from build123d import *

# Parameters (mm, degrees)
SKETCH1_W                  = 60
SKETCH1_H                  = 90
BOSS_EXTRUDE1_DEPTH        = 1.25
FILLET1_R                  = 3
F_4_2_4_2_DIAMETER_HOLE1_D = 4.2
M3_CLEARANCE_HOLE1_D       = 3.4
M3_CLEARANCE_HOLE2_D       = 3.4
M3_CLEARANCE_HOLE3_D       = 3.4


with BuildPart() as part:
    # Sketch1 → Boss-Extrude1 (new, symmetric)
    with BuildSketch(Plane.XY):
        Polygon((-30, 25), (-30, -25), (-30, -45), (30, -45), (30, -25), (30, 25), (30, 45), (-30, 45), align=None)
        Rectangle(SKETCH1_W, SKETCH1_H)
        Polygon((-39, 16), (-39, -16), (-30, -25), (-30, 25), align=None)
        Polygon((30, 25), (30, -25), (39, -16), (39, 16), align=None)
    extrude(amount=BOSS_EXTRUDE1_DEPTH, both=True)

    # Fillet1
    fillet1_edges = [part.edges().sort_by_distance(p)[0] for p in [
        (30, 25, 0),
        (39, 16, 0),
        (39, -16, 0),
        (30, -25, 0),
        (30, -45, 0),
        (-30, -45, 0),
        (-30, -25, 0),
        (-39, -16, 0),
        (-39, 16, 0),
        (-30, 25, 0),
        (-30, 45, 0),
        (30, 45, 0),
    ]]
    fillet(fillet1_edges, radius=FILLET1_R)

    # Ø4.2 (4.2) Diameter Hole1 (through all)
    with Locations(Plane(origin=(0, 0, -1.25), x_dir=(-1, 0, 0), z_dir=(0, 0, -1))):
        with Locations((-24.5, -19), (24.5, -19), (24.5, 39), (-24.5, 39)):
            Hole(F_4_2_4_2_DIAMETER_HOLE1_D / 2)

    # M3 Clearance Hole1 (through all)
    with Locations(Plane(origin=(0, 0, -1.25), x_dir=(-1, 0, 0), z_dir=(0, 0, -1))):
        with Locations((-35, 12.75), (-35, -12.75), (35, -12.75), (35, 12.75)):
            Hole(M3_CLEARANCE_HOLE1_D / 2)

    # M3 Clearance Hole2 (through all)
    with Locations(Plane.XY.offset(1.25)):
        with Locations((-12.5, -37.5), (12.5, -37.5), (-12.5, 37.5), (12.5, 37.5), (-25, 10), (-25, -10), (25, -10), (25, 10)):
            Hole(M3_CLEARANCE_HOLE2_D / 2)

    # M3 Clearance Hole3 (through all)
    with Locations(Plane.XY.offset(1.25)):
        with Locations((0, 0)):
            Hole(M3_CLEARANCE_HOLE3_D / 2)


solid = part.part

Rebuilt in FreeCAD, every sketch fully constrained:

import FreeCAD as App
import Part
import Sketcher

V = App.Vector
Q = App.Units.Quantity


def edges_at(feature, points):
    """Names of the edges that pass closest to the given points."""
    edges = feature.Shape.Edges
    near = lambda p: min(range(len(edges)), key=lambda i: edges[i].distToShape(Part.Vertex(*p))[0])
    return sorted({f"Edge{near(p) + 1}" for p in points})

doc = App.newDocument("Part")
params = doc.addObject("Spreadsheet::Sheet", "Params")
for row, (alias, value) in enumerate([
    ("sketch1_width", "60 mm"),
    ("sketch1_height", "20 mm"),
    ("sketch1_height2", "32 mm"),
    ("pad1_length", "2.5 mm"),
    ("fillet_radius", "3 mm"),
    ("sketch2_diameter", "4.2 mm"),
    ("hole_diameter", "4.2 mm"),
    ("sketch3_diameter", "3.4 mm"),
    ("hole2_diameter", "3.4 mm"),
    ("sketch4_diameter", "3.4 mm"),
    ("hole3_diameter", "3.4 mm"),
    ("sketch5_diameter", "3.4 mm"),
    ("hole4_diameter", "3.4 mm"),
], start=1):
    params.set(f"A{row}", alias)
    params.set(f"B{row}", "=" + value)
    params.setAlias(f"B{row}", alias)

body = doc.addObject("PartDesign::Body", "Body")

# Sketch on XY plane
sketch1 = body.newObject("Sketcher::SketchObject", "Sketch")
sketch1.AttachmentSupport = (doc.getObject("XY_Plane"), [""])
sketch1.MapMode = "FlatFace"
sketch1.addGeometry([
    Part.LineSegment(V(-30, -45, 0), V(30, -45, 0)),  # 0
    Part.LineSegment(V(30, -45, 0), V(30, -25, 0)),  # 1
    Part.LineSegment(V(30, -25, 0), V(39, -16, 0)),  # 2
    Part.LineSegment(V(39, -16, 0), V(39, 16, 0)),  # 3
    Part.LineSegment(V(39, 16, 0), V(30, 25, 0)),  # 4
    Part.LineSegment(V(30, 25, 0), V(30, 45, 0)),  # 5
    Part.LineSegment(V(30, 45, 0), V(-30, 45, 0)),  # 6
    Part.LineSegment(V(-30, 45, 0), V(-30, 25, 0)),  # 7
    Part.LineSegment(V(-30, 25, 0), V(-39, 16, 0)),  # 8
    Part.LineSegment(V(-39, 16, 0), V(-39, -16, 0)),  # 9
    Part.LineSegment(V(-39, -16, 0), V(-30, -25, 0)),  # 10
    Part.LineSegment(V(-30, -25, 0), V(-30, -45, 0)),  # 11
], False)
sketch1.addConstraint([
    Sketcher.Constraint("Coincident", 0, 2, 1, 1),
    Sketcher.Constraint("Coincident", 1, 2, 2, 1),
    Sketcher.Constraint("Coincident", 2, 2, 3, 1),
    Sketcher.Constraint("Coincident", 3, 2, 4, 1),
    Sketcher.Constraint("Coincident", 4, 2, 5, 1),
    Sketcher.Constraint("Coincident", 5, 2, 6, 1),
    Sketcher.Constraint("Coincident", 6, 2, 7, 1),
    Sketcher.Constraint("Coincident", 7, 2, 8, 1),
    Sketcher.Constraint("Coincident", 8, 2, 9, 1),
    Sketcher.Constraint("Coincident", 9, 2, 10, 1),
    Sketcher.Constraint("Coincident", 10, 2, 11, 1),
    Sketcher.Constraint("Coincident", 11, 2, 0, 1),
    Sketcher.Constraint("Horizontal", 0),
    Sketcher.Constraint("Vertical", 1),
    Sketcher.Constraint("Vertical", 3),
    Sketcher.Constraint("Vertical", 5),
    Sketcher.Constraint("Horizontal", 6),
    Sketcher.Constraint("Vertical", 7),
    Sketcher.Constraint("Vertical", 9),
    Sketcher.Constraint("Vertical", 11),
    Sketcher.Constraint("Symmetric", 0, 2, 6, 2, -1, 1),
    Sketcher.Constraint("Symmetric", 2, 2, 8, 2, -1, 1),
    Sketcher.Constraint("Symmetric", 4, 2, 10, 2, -1, 1),
    Sketcher.Constraint("Symmetric", 4, 2, 7, 2, -2),
    Sketcher.Constraint("Perpendicular", 2, 4),
    Sketcher.Constraint("Perpendicular", 4, 8),
    Sketcher.Constraint("Perpendicular", 8, 10),
    Sketcher.Constraint("Horizontal", 3, 2, 8, 2),
    Sketcher.Constraint("DistanceX", 0, 1, 0, 2, Q("60 mm")),
    Sketcher.Constraint("DistanceY", 1, 1, 1, 2, Q("20 mm")),
    Sketcher.Constraint("DistanceY", 3, 1, 3, 2, Q("32 mm")),
    Sketcher.Constraint("DistanceY", 0, 2, -1, 1, Q("45 mm")),
])
sketch1.setExpression("Constraints[28]", "Params.sketch1_width")
sketch1.setExpression("Constraints[29]", "Params.sketch1_height")
sketch1.setExpression("Constraints[30]", "Params.sketch1_height2")
pad1 = body.newObject("PartDesign::Pad", "Pad")
pad1.Profile = sketch1
pad1.setExpression("Length", "Params.pad1_length")
pad1.Midplane = True
doc.recompute()

fillet = body.newObject("PartDesign::Fillet", "Fillet")
fillet.Base = (pad1, edges_at(pad1, [
    (30, 25, 0),
    (39, 16, 0),
    (39, -16, 0),
    (30, -25, 0),
    (30, -45, 0),
    (-30, -45, 0),
    (-30, -25, 0),
    (-39, -16, 0),
    (-39, 16, 0),
    (-30, 25, 0),
    (-30, 45, 0),
    (30, 45, 0),
]))
fillet.setExpression("Radius", "Params.fillet_radius")

# Sketch on XY plane
sketch2 = body.newObject("Sketcher::SketchObject", "Sketch001")
sketch2.AttachmentSupport = (doc.getObject("XY_Plane"), [""])
sketch2.MapMode = "FlatFace"
sketch2.AttachmentOffset = App.Placement(V(0, 0, -1.25), App.Rotation())
sketch2.addGeometry([
    Part.Circle(V(24.5, -19, 0), V(0, 0, 1), 2.1),
    Part.Circle(V(-24.5, -19, 0), V(0, 0, 1), 2.1),
    Part.Circle(V(-24.5, 39, 0), V(0, 0, 1), 2.1),
    Part.Circle(V(24.5, 39, 0), V(0, 0, 1), 2.1),
], False)
sketch2.addConstraint([
    Sketcher.Constraint("Equal", 0, 1),
    Sketcher.Constraint("Equal", 1, 2),
    Sketcher.Constraint("Equal", 2, 3),
    Sketcher.Constraint("Symmetric", 0, 3, 1, 3, -2),
    Sketcher.Constraint("Symmetric", 2, 3, 3, 3, -2),
    Sketcher.Constraint("Vertical", 1, 3, 2, 3),
    Sketcher.Constraint("Diameter", 0, Q("4.2 mm")),
    Sketcher.Constraint("DistanceY", 0, 3, -1, 1, Q("19 mm")),
    Sketcher.Constraint("DistanceY", -1, 1, 2, 3, Q("39 mm")),
    Sketcher.Constraint("DistanceX", 1, 3, 0, 3, Q("49 mm")),
])
sketch2.setExpression("Constraints[6]", "Params.sketch2_diameter")
doc.recompute()
hole = body.newObject("PartDesign::Hole", "Hole")
hole.Profile = sketch2
hole.ThreadType = "None"
hole.setExpression("Diameter", "Params.hole_diameter")
hole.DepthType = "ThroughAll"
hole.Reversed = True

# Sketch on XY plane
sketch3 = body.newObject("Sketcher::SketchObject", "Sketch002")
sketch3.AttachmentSupport = (doc.getObject("XY_Plane"), [""])
sketch3.MapMode = "FlatFace"
sketch3.AttachmentOffset = App.Placement(V(0, 0, -1.25), App.Rotation())
sketch3.addGeometry([
    Part.Circle(V(35, 12.8, 0), V(0, 0, 1), 1.7),
    Part.Circle(V(35, -12.8, 0), V(0, 0, 1), 1.7),
    Part.Circle(V(-35, -12.8, 0), V(0, 0, 1), 1.7),
    Part.Circle(V(-35, 12.8, 0), V(0, 0, 1), 1.7),
], False)
sketch3.addConstraint([
    Sketcher.Constraint("Equal", 0, 1),
    Sketcher.Constraint("Equal", 1, 2),
    Sketcher.Constraint("Equal", 2, 3),
    Sketcher.Constraint("Symmetric", 0, 3, 2, 3, -1, 1),
    Sketcher.Constraint("Symmetric", 1, 3, 3, 3, -1, 1),
    Sketcher.Constraint("Symmetric", 1, 3, 2, 3, -2),
    Sketcher.Constraint("Diameter", 0, Q("3.4 mm")),
    Sketcher.Constraint("DistanceX", -1, 1, 0, 3, Q("35 mm")),
    Sketcher.Constraint("DistanceY", 1, 3, 0, 3, Q("25.5 mm")),
])
sketch3.setExpression("Constraints[6]", "Params.sketch3_diameter")
doc.recompute()
hole2 = body.newObject("PartDesign::Hole", "Hole001")
hole2.Profile = sketch3
hole2.ThreadType = "None"
hole2.setExpression("Diameter", "Params.hole2_diameter")
hole2.DepthType = "ThroughAll"
hole2.Reversed = True

# Sketch on XY plane
sketch4 = body.newObject("Sketcher::SketchObject", "Sketch003")
sketch4.AttachmentSupport = (doc.getObject("XY_Plane"), [""])
sketch4.MapMode = "FlatFace"
sketch4.AttachmentOffset = App.Placement(V(0, 0, 1.25), App.Rotation())
sketch4.addGeometry([
    Part.Circle(V(-12.5, -37.5, 0), V(0, 0, 1), 1.7),  # 0
    Part.Circle(V(12.5, -37.5, 0), V(0, 0, 1), 1.7),  # 1
    Part.Circle(V(-12.5, 37.5, 0), V(0, 0, 1), 1.7),  # 2
    Part.Circle(V(12.5, 37.5, 0), V(0, 0, 1), 1.7),  # 3
    Part.Circle(V(-25, 10, 0), V(0, 0, 1), 1.7),  # 4
    Part.Circle(V(-25, -10, 0), V(0, 0, 1), 1.7),  # 5
    Part.Circle(V(25, -10, 0), V(0, 0, 1), 1.7),  # 6
    Part.Circle(V(25, 10, 0), V(0, 0, 1), 1.7),  # 7
], False)
sketch4.addConstraint([
    Sketcher.Constraint("Equal", 0, 1),
    Sketcher.Constraint("Equal", 1, 2),
    Sketcher.Constraint("Equal", 2, 3),
    Sketcher.Constraint("Equal", 3, 4),
    Sketcher.Constraint("Equal", 4, 5),
    Sketcher.Constraint("Equal", 5, 6),
    Sketcher.Constraint("Equal", 6, 7),
    Sketcher.Constraint("Symmetric", 1, 3, 2, 3, -1, 1),
    Sketcher.Constraint("Symmetric", 0, 3, 3, 3, -1, 1),
    Sketcher.Constraint("Symmetric", 4, 3, 6, 3, -1, 1),
    Sketcher.Constraint("Symmetric", 5, 3, 7, 3, -1, 1),
    Sketcher.Constraint("Symmetric", 0, 3, 1, 3, -2),
    Sketcher.Constraint("Symmetric", 5, 3, 6, 3, -2),
    Sketcher.Constraint("Diameter", 0, Q("3.4 mm")),
    Sketcher.Constraint("DistanceX", 4, 3, -1, 1, Q("25 mm")),
    Sketcher.Constraint("DistanceY", -1, 1, 4, 3, Q("10 mm")),
    Sketcher.Constraint("DistanceX", 0, 3, 1, 3, Q("25 mm")),
    Sketcher.Constraint("DistanceY", 0, 3, 2, 3, Q("75 mm")),
])
sketch4.setExpression("Constraints[13]", "Params.sketch4_diameter")
doc.recompute()
hole3 = body.newObject("PartDesign::Hole", "Hole002")
hole3.Profile = sketch4
hole3.ThreadType = "None"
hole3.setExpression("Diameter", "Params.hole3_diameter")
hole3.DepthType = "ThroughAll"

# Sketch on XY plane
sketch5 = body.newObject("Sketcher::SketchObject", "Sketch004")
sketch5.AttachmentSupport = (doc.getObject("XY_Plane"), [""])
sketch5.MapMode = "FlatFace"
sketch5.AttachmentOffset = App.Placement(V(0, 0, 1.25), App.Rotation())
sketch5.addGeometry(Part.Circle(V(0, 0, 0), V(0, 0, 1), 1.7), False)
sketch5.addConstraint([
    Sketcher.Constraint("Coincident", 0, 3, -1, 1),
    Sketcher.Constraint("Diameter", 0, Q("3.4 mm")),
])
sketch5.setExpression("Constraints[1]", "Params.sketch5_diameter")
doc.recompute()
hole4 = body.newObject("PartDesign::Hole", "Hole003")
hole4.Profile = sketch5
hole4.ThreadType = "None"
hole4.setExpression("Diameter", "Params.hole4_diameter")
hole4.DepthType = "ThroughAll"

doc.recompute()
